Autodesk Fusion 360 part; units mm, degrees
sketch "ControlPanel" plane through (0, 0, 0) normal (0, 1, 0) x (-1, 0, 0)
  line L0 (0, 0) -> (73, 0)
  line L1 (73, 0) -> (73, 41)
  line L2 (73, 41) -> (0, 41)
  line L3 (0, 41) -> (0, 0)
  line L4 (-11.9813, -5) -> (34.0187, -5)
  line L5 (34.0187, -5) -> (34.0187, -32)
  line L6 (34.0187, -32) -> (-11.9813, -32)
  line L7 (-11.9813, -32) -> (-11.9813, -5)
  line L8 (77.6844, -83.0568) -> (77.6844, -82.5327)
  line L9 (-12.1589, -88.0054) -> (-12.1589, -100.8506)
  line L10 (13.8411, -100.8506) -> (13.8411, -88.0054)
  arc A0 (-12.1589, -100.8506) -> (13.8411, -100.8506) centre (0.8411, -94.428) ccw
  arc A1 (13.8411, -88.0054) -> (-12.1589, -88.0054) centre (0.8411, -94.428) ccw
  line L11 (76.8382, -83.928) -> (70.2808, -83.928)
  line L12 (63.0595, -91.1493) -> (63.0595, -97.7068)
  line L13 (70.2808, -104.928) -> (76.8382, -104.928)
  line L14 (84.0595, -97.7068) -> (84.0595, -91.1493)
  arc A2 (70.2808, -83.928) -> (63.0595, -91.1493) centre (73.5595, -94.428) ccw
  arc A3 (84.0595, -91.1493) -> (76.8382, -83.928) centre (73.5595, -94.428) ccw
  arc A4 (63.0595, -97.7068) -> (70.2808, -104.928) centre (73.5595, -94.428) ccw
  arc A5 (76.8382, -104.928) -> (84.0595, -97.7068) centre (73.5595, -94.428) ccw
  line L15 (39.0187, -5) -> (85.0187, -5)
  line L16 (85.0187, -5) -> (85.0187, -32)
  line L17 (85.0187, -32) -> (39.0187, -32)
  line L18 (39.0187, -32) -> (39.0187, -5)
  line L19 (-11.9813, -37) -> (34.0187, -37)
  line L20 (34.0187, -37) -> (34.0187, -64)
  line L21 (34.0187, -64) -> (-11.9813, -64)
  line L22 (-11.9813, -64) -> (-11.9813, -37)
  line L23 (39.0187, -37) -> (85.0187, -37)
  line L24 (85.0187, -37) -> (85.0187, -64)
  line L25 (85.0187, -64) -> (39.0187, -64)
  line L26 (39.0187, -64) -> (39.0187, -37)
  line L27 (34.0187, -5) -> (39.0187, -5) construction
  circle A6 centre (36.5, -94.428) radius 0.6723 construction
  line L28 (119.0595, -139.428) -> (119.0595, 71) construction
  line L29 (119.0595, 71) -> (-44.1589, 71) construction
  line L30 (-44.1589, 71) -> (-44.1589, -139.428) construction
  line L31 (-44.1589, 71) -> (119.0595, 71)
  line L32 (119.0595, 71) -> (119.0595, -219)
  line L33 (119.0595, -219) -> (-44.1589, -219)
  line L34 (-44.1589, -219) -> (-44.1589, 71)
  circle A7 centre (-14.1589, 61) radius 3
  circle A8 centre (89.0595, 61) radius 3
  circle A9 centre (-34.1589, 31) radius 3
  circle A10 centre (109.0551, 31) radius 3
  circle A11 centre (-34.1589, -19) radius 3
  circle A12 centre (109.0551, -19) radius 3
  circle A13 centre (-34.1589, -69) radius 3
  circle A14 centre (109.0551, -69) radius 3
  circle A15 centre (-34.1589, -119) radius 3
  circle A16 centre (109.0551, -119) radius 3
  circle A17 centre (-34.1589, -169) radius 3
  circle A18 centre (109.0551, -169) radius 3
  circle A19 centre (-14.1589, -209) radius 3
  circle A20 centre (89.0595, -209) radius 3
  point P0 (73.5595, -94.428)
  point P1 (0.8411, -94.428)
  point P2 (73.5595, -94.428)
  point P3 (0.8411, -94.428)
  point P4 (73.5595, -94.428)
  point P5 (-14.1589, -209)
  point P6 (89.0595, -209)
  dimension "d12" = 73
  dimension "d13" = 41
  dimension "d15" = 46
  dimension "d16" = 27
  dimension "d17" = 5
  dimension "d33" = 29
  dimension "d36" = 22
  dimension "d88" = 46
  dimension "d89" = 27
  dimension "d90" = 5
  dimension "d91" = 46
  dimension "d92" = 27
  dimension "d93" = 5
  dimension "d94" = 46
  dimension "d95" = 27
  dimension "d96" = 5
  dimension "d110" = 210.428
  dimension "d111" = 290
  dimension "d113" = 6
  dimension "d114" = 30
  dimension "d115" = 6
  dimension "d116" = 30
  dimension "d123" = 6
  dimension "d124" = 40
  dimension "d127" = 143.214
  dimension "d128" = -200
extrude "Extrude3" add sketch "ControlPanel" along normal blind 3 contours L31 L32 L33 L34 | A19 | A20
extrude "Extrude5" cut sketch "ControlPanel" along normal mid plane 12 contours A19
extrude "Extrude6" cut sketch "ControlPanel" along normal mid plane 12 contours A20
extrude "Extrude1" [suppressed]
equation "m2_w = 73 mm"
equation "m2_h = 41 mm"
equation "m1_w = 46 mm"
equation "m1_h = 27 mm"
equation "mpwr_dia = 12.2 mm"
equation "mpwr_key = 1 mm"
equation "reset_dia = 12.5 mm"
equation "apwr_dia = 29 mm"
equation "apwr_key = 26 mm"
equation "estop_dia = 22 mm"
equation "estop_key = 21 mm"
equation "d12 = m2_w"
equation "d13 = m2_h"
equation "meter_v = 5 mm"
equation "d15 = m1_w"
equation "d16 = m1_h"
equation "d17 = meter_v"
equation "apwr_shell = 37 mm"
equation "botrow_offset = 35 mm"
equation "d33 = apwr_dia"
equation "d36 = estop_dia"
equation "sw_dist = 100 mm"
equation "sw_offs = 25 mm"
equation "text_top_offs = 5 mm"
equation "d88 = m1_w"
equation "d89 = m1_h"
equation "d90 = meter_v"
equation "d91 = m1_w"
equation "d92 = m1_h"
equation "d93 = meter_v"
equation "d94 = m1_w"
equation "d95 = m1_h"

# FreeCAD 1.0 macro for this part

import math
import FreeCAD as App
import Part
import Sketcher

doc = App.newDocument("Part")
params = doc.addObject("Spreadsheet::Sheet", "Params")
for row, (alias, value) in enumerate([
    ("sketch1_diameter", "6 mm"),
    ("sketch1_radius", "11 mm"),
    ("sketch1_radius2", "14.5 mm"),
    ("sketch1_width", "46 mm"),
    ("sketch1_width2", "73 mm"),
    ("pad1_length", "3 mm"),
    ("sketch2_diameter", "6 mm"),
    ("pocket1_length", "12 mm"),
    ("sketch3_diameter", "6 mm"),
    ("pocket2_length", "12 mm"),
], start=1):
    params.set(f"A{row}", alias)
    params.set(f"B{row}", "=" + value)
    params.setAlias(f"B{row}", alias)

body = doc.addObject("PartDesign::Body", "Body")

sketch1 = body.newObject("Sketcher::SketchObject", "Sketch")
sketch1.AttachmentSupport = (doc.getObject("XZ_Plane"), [""])
sketch1.MapMode = "FlatFace"
sketch1.addGeometry([
    Part.LineSegment(App.Vector(-119.0595, 71, 0), App.Vector(44.1589, 71, 0)),
    Part.LineSegment(App.Vector(44.1589, 71, 0), App.Vector(44.1589, -219, 0)),
    Part.LineSegment(App.Vector(44.1589, -219, 0), App.Vector(-119.0595, -219, 0)),
    Part.LineSegment(App.Vector(-119.0595, -219, 0), App.Vector(-119.0595, 71, 0)),
    Part.Circle(App.Vector(34.1589, -169, 0), App.Vector(0, 0, 1), 3),
    Part.Circle(App.Vector(34.1589, -119, 0), App.Vector(0, 0, 1), 3),
    Part.LineSegment(App.Vector(12.1589, -100.8506, 0), App.Vector(12.1589, -88.0054, 0)),
    Part.ArcOfCircle(Part.Circle(App.Vector(-0.8411, -94.428, 0), App.Vector(0, 0, 1), 14.499993), math.radians(26.291498), math.radians(153.708502)),
    Part.LineSegment(App.Vector(-13.8411, -88.0054, 0), App.Vector(-13.8411, -100.8506, 0)),
    Part.ArcOfCircle(Part.Circle(App.Vector(-0.8411, -94.428, 0), App.Vector(0, 0, 1), 14.499993), math.radians(-153.708502), math.radians(-26.291498)),
    Part.Circle(App.Vector(-109.0551, -169, 0), App.Vector(0, 0, 1), 3),
    Part.LineSegment(App.Vector(-70.2808, -83.928, 0), App.Vector(-76.8382, -83.928, 0)),
    Part.ArcOfCircle(Part.Circle(App.Vector(-73.5595, -94.428, 0), App.Vector(0, 0, 1), 10.999994), math.radians(107.341347), math.radians(162.658653)),
    Part.LineSegment(App.Vector(-84.0595, -91.1493, 0), App.Vector(-84.0595, -97.7068, 0)),
    Part.ArcOfCircle(Part.Circle(App.Vector(-73.5595, -94.428, 0), App.Vector(0, 0, 1), 11.000024), math.radians(-162.658156), math.radians(-107.341347)),
    Part.LineSegment(App.Vector(-76.8382, -104.928, 0), App.Vector(-70.2808, -104.928, 0)),
    Part.ArcOfCircle(Part.Circle(App.Vector(-73.5595, -94.428, 0), App.Vector(0, 0, 1), 10.999994), math.radians(-72.658653), math.radians(-17.341844)),
    Part.LineSegment(App.Vector(-63.0595, -97.7068, 0), App.Vector(-63.0595, -91.1493, 0)),
    Part.ArcOfCircle(Part.Circle(App.Vector(-73.5595, -94.428, 0), App.Vector(0, 0, 1), 10.999994), math.radians(17.341347), math.radians(72.658653)),
    Part.Circle(App.Vector(-109.0551, -119, 0), App.Vector(0, 0, 1), 3),
    Part.Circle(App.Vector(34.1589, -69, 0), App.Vector(0, 0, 1), 3),
    Part.Circle(App.Vector(34.1589, -19, 0), App.Vector(0, 0, 1), 3),
    Part.LineSegment(App.Vector(11.9813, -64, 0), App.Vector(11.9813, -37, 0)),
    Part.LineSegment(App.Vector(11.9813, -37, 0), App.Vector(-34.0187, -37, 0)),
    Part.LineSegment(App.Vector(-34.0187, -37, 0), App.Vector(-34.0187, -64, 0)),
    Part.LineSegment(App.Vector(-34.0187, -64, 0), App.Vector(11.9813, -64, 0)),
    Part.LineSegment(App.Vector(11.9813, -32, 0), App.Vector(11.9813, -5, 0)),
    Part.LineSegment(App.Vector(11.9813, -5, 0), App.Vector(-34.0187, -5, 0)),
    Part.LineSegment(App.Vector(-34.0187, -5, 0), App.Vector(-34.0187, -32, 0)),
    Part.LineSegment(App.Vector(-34.0187, -32, 0), App.Vector(11.9813, -32, 0)),
    Part.Circle(App.Vector(34.1589, 31, 0), App.Vector(0, 0, 1), 3),
    Part.Circle(App.Vector(14.1589, 61, 0), App.Vector(0, 0, 1), 3),
    Part.LineSegment(App.Vector(-73, 0, 0), App.Vector(0, 0, 0)),
    Part.LineSegment(App.Vector(0, 0, 0), App.Vector(0, 41, 0)),
    Part.LineSegment(App.Vector(0, 41, 0), App.Vector(-73, 41, 0)),
    Part.LineSegment(App.Vector(-73, 41, 0), App.Vector(-73, 0, 0)),
    Part.LineSegment(App.Vector(-39.0187, -64, 0), App.Vector(-39.0187, -37, 0)),
    Part.LineSegment(App.Vector(-39.0187, -37, 0), App.Vector(-85.0187, -37, 0)),
    Part.LineSegment(App.Vector(-85.0187, -37, 0), App.Vector(-85.0187, -64, 0)),
    Part.LineSegment(App.Vector(-85.0187, -64, 0), App.Vector(-39.0187, -64, 0)),
    Part.LineSegment(App.Vector(-39.0187, -32, 0), App.Vector(-39.0187, -5, 0)),
    Part.LineSegment(App.Vector(-39.0187, -5, 0), App.Vector(-85.0187, -5, 0)),
    Part.LineSegment(App.Vector(-85.0187, -5, 0), App.Vector(-85.0187, -32, 0)),
    Part.LineSegment(App.Vector(-85.0187, -32, 0), App.Vector(-39.0187, -32, 0)),
    Part.Circle(App.Vector(-109.0551, -69, 0), App.Vector(0, 0, 1), 3),
    Part.Circle(App.Vector(-109.0551, -19, 0), App.Vector(0, 0, 1), 3),
    Part.Circle(App.Vector(-109.0551, 31, 0), App.Vector(0, 0, 1), 3),
    Part.Circle(App.Vector(-89.0595, 61, 0), App.Vector(0, 0, 1), 3),
], False)
sketch1.addConstraint([
    Sketcher.Constraint("Coincident", 0, 2, 1, 1),
    Sketcher.Constraint("Coincident", 1, 2, 2, 1),
    Sketcher.Constraint("Coincident", 2, 2, 3, 1),
    Sketcher.Constraint("Coincident", 3, 2, 0, 1),
    Sketcher.Constraint("Coincident", 6, 2, 7, 1),
    Sketcher.Constraint("Coincident", 7, 2, 8, 1),
    Sketcher.Constraint("Coincident", 8, 2, 9, 1),
    Sketcher.Constraint("Coincident", 9, 2, 6, 1),
    Sketcher.Constraint("Coincident", 11, 2, 12, 1),
    Sketcher.Constraint("Coincident", 12, 2, 13, 1),
    Sketcher.Constraint("Coincident", 13, 2, 14, 1),
    Sketcher.Constraint("Coincident", 14, 2, 15, 1),
    Sketcher.Constraint("Coincident", 15, 2, 16, 1),
    Sketcher.Constraint("Coincident", 16, 2, 17, 1),
    Sketcher.Constraint("Coincident", 17, 2, 18, 1),
    Sketcher.Constraint("Coincident", 18, 2, 11, 1),
    Sketcher.Constraint("Coincident", 22, 2, 23, 1),
    Sketcher.Constraint("Coincident", 23, 2, 24, 1),
    Sketcher.Constraint("Coincident", 24, 2, 25, 1),
    Sketcher.Constraint("Coincident", 25, 2, 22, 1),
    Sketcher.Constraint("Coincident", 26, 2, 27, 1),
    Sketcher.Constraint("Coincident", 27, 2, 28, 1),
    Sketcher.Constraint("Coincident", 28, 2, 29, 1),
    Sketcher.Constraint("Coincident", 29, 2, 26, 1),
    Sketcher.Constraint("Coincident", 32, 2, 33, 1),
    Sketcher.Constraint("Coincident", 33, 2, 34, 1),
    Sketcher.Constraint("Coincident", 34, 2, 35, 1),
    Sketcher.Constraint("Coincident", 35, 2, 32, 1),
    Sketcher.Constraint("Coincident", 36, 2, 37, 1),
    Sketcher.Constraint("Coincident", 37, 2, 38, 1),
    Sketcher.Constraint("Coincident", 38, 2, 39, 1),
    Sketcher.Constraint("Coincident", 39, 2, 36, 1),
    Sketcher.Constraint("Coincident", 40, 2, 41, 1),
    Sketcher.Constraint("Coincident", 41, 2, 42, 1),
    Sketcher.Constraint("Coincident", 42, 2, 43, 1),
    Sketcher.Constraint("Coincident", 43, 2, 40, 1),
    Sketcher.Constraint("Horizontal", 0),
    Sketcher.Constraint("Vertical", 1),
    Sketcher.Constraint("Horizontal", 2),
    Sketcher.Constraint("Vertical", 3),
    Sketcher.Constraint("Vertical", 6),
    Sketcher.Constraint("Vertical", 8),
    Sketcher.Constraint("Horizontal", 11),
    Sketcher.Constraint("Vertical", 13),
    Sketcher.Constraint("Horizontal", 15),
    Sketcher.Constraint("Vertical", 17),
    Sketcher.Constraint("Vertical", 22),
    Sketcher.Constraint("Horizontal", 23),
    Sketcher.Constraint("Vertical", 24),
    Sketcher.Constraint("Horizontal", 25),
    Sketcher.Constraint("Vertical", 26),
    Sketcher.Constraint("Horizontal", 27),
    Sketcher.Constraint("Vertical", 28),
    Sketcher.Constraint("Horizontal", 29),
    Sketcher.Constraint("Horizontal", 32),
    Sketcher.Constraint("Vertical", 33),
    Sketcher.Constraint("Horizontal", 34),
    Sketcher.Constraint("Vertical", 35),
    Sketcher.Constraint("Vertical", 36),
    Sketcher.Constraint("Horizontal", 37),
    Sketcher.Constraint("Vertical", 38),
    Sketcher.Constraint("Horizontal", 39),
    Sketcher.Constraint("Vertical", 40),
    Sketcher.Constraint("Horizontal", 41),
    Sketcher.Constraint("Vertical", 42),
    Sketcher.Constraint("Horizontal", 43),
    Sketcher.Constraint("Coincident", 32, 2, -1, 1),
    Sketcher.Constraint("Coincident", 9, 3, 7, 3),
    Sketcher.Constraint("Coincident", 14, 3, 12, 3),
    Sketcher.Constraint("Coincident", 16, 3, 12, 3),
    Sketcher.Constraint("Coincident", 18, 3, 12, 3),
    Sketcher.Constraint("Equal", 4, 5),
    Sketcher.Constraint("Equal", 7, 9),
    Sketcher.Constraint("Equal", 5, 10),
    Sketcher.Constraint("Equal", 12, 14),
    Sketcher.Constraint("Equal", 14, 16),
    Sketcher.Constraint("Equal", 16, 18),
    Sketcher.Constraint("Equal", 10, 19),
    Sketcher.Constraint("Equal", 19, 20),
    Sketcher.Constraint("Equal", 20, 21),
    Sketcher.Constraint("Equal", 21, 30),
    Sketcher.Constraint("Equal", 30, 31),
    Sketcher.Constraint("Equal", 31, 44),
    Sketcher.Constraint("Equal", 44, 45),
    Sketcher.Constraint("Equal", 45, 46),
    Sketcher.Constraint("Equal", 46, 47),
    Sketcher.Constraint("Horizontal", 4, 3, 10, 3),
    Sketcher.Constraint("Horizontal", 9, 3, 12, 3),
    Sketcher.Constraint("Horizontal", 5, 3, 19, 3),
    Sketcher.Constraint("Horizontal", 20, 3, 44, 3),
    Sketcher.Constraint("Horizontal", 21, 3, 45, 3),
    Sketcher.Constraint("Horizontal", 30, 3, 46, 3),
    Sketcher.Constraint("Horizontal", 31, 3, 47, 3),
    Sketcher.Constraint("Horizontal", 6, 2, 7, 2),
    Sketcher.Constraint("Horizontal", 13, 2, 16, 2),
    Sketcher.Constraint("Horizontal", 23, 2, 36, 2),
    Sketcher.Constraint("Horizontal", 25, 2, 38, 2),
    Sketcher.Constraint("Horizontal", 27, 2, 40, 2),
    Sketcher.Constraint("Horizontal", 29, 2, 42, 2),
    Sketcher.Constraint("Vertical", 4, 3, 5, 3),
    Sketcher.Constraint("Vertical", 10, 3, 19, 3),
    Sketcher.Constraint("Vertical", 5, 3, 20, 3),
    Sketcher.Constraint("Vertical", 20, 3, 21, 3),
    Sketcher.Constraint("Vertical", 21, 3, 30, 3),
    Sketcher.Constraint("Vertical", 19, 3, 44, 3),
    Sketcher.Constraint("Vertical", 44, 3, 45, 3),
    Sketcher.Constraint("Vertical", 45, 3, 46, 3),
    Sketcher.Constraint("Vertical", 11, 2, 14, 2),
    Sketcher.Constraint("Vertical", 25, 2, 26, 2),
    Sketcher.Constraint("Vertical", 24, 2, 27, 2),
    Sketcher.Constraint("Vertical", 39, 2, 40, 2),
    Sketcher.Constraint("Vertical", 38, 2, 41, 2),
    Sketcher.Constraint("Equal", 29, 37),
    Sketcher.Constraint("Equal", 15, 13),
    Sketcher.Constraint("Equal", 24, 26),
    Sketcher.Constraint("Diameter", 4, 6.0),
    Sketcher.Constraint("Radius", 12, 11.0),
    Sketcher.Constraint("Radius", 7, 14.5),
    Sketcher.Constraint("DistanceX", 23, 2, 23, 1, 46.0),
    Sketcher.Constraint("DistanceX", 32, 1, 32, 2, 73.0),
    Sketcher.Constraint("DistanceY", 1, 2, 1, 1, 290.0),
    Sketcher.Constraint("DistanceY", 22, 1, 22, 2, 27.0),
    Sketcher.Constraint("DistanceY", 33, 1, 33, 2, 41.0),
    Sketcher.Constraint("DistanceY", 26, 2, -1, 1, 5.0),
    Sketcher.Constraint("DistanceY", 30, 3, 31, 3, 30.0),
    Sketcher.Constraint("DistanceX", 31, 3, 0, 2, 30.0),
    Sketcher.Constraint("DistanceY", 30, 3, 0, 2, 40.0),
    Sketcher.Constraint("DistanceX", 3, 2, 47, 3, 30.0),
    Sketcher.Constraint("DistanceX", 6, 2, 20, 3, 22.0),
    Sketcher.Constraint("DistanceY", 20, 3, 25, 2, 5.0),
    Sketcher.Constraint("DistanceY", 23, 2, 28, 2, 5.0),
    Sketcher.Constraint("DistanceY", 33, 2, 0, 2, 30.0),
    Sketcher.Constraint("DistanceX", 36, 2, 23, 2, 5.0),
    Sketcher.Constraint("DistanceY", 4, 3, -1, 1, 169.0),
    Sketcher.Constraint("DistanceY", 5, 3, -1, 1, 119.0),
    Sketcher.Constraint("DistanceY", 21, 3, -1, 1, 19.0),
    Sketcher.Constraint("DistanceX", 7, 3, 5, 3, 35.0),
    Sketcher.Constraint("DistanceX", 10, 3, 4, 3, 143.214),
    Sketcher.Constraint("DistanceX", 31, 3, 30, 3, 20.0),
    Sketcher.Constraint("DistanceX", 2, 2, 12, 3, 45.5),
    Sketcher.Constraint("DistanceY", 12, 3, 11, 2, 10.5),
    Sketcher.Constraint("DistanceX", 0, 1, 0, 2, 163.2184),
    Sketcher.Constraint("DistanceX", -1, 1, 4, 3, 34.159),
    Sketcher.Constraint("DistanceY", 7, 3, -1, 1, 94.428),
    Sketcher.Constraint("DistanceX", 18, 2, 23, 2, 36.262),
])
sketch1.setExpression("Constraints[115]", "Params.sketch1_diameter")
sketch1.setExpression("Constraints[116]", "Params.sketch1_radius")
sketch1.setExpression("Constraints[117]", "Params.sketch1_radius2")
sketch1.setExpression("Constraints[118]", "Params.sketch1_width")
sketch1.setExpression("Constraints[119]", "Params.sketch1_width2")
pad1 = body.newObject("PartDesign::Pad", "Pad")
pad1.Profile = sketch1
pad1.setExpression("Length", "Params.pad1_length")
pad1.Reversed = True

sketch2 = body.newObject("Sketcher::SketchObject", "Sketch001")
sketch2.AttachmentSupport = (doc.getObject("XZ_Plane"), [""])
sketch2.MapMode = "FlatFace"
sketch2.addGeometry(Part.Circle(App.Vector(14.1589, -209, 0), App.Vector(0, 0, 1), 3), False)
sketch2.addConstraint([
    Sketcher.Constraint("Diameter", 0, 6.0),
    Sketcher.Constraint("DistanceY", 0, 3, -1, 1, 209.0),
    Sketcher.Constraint("DistanceX", -1, 1, 0, 3, 14.159),
])
sketch2.setExpression("Constraints[0]", "Params.sketch2_diameter")
pocket1 = body.newObject("PartDesign::Pocket", "Pocket")
pocket1.Profile = sketch2
pocket1.setExpression("Length", "Params.pocket1_length")
pocket1.Midplane = True

sketch3 = body.newObject("Sketcher::SketchObject", "Sketch002")
sketch3.AttachmentSupport = (doc.getObject("XZ_Plane"), [""])
sketch3.MapMode = "FlatFace"
sketch3.addGeometry(Part.Circle(App.Vector(-89.0595, -209, 0), App.Vector(0, 0, 1), 3), False)
sketch3.addConstraint([
    Sketcher.Constraint("Diameter", 0, 6.0),
    Sketcher.Constraint("DistanceY", 0, 3, -1, 1, 209.0),
    Sketcher.Constraint("DistanceX", 0, 3, -1, 1, 89.0595),
])
sketch3.setExpression("Constraints[0]", "Params.sketch3_diameter")
pocket2 = body.newObject("PartDesign::Pocket", "Pocket001")
pocket2.Profile = sketch3
pocket2.setExpression("Length", "Params.pocket2_length")
pocket2.Midplane = True

doc.recompute()
